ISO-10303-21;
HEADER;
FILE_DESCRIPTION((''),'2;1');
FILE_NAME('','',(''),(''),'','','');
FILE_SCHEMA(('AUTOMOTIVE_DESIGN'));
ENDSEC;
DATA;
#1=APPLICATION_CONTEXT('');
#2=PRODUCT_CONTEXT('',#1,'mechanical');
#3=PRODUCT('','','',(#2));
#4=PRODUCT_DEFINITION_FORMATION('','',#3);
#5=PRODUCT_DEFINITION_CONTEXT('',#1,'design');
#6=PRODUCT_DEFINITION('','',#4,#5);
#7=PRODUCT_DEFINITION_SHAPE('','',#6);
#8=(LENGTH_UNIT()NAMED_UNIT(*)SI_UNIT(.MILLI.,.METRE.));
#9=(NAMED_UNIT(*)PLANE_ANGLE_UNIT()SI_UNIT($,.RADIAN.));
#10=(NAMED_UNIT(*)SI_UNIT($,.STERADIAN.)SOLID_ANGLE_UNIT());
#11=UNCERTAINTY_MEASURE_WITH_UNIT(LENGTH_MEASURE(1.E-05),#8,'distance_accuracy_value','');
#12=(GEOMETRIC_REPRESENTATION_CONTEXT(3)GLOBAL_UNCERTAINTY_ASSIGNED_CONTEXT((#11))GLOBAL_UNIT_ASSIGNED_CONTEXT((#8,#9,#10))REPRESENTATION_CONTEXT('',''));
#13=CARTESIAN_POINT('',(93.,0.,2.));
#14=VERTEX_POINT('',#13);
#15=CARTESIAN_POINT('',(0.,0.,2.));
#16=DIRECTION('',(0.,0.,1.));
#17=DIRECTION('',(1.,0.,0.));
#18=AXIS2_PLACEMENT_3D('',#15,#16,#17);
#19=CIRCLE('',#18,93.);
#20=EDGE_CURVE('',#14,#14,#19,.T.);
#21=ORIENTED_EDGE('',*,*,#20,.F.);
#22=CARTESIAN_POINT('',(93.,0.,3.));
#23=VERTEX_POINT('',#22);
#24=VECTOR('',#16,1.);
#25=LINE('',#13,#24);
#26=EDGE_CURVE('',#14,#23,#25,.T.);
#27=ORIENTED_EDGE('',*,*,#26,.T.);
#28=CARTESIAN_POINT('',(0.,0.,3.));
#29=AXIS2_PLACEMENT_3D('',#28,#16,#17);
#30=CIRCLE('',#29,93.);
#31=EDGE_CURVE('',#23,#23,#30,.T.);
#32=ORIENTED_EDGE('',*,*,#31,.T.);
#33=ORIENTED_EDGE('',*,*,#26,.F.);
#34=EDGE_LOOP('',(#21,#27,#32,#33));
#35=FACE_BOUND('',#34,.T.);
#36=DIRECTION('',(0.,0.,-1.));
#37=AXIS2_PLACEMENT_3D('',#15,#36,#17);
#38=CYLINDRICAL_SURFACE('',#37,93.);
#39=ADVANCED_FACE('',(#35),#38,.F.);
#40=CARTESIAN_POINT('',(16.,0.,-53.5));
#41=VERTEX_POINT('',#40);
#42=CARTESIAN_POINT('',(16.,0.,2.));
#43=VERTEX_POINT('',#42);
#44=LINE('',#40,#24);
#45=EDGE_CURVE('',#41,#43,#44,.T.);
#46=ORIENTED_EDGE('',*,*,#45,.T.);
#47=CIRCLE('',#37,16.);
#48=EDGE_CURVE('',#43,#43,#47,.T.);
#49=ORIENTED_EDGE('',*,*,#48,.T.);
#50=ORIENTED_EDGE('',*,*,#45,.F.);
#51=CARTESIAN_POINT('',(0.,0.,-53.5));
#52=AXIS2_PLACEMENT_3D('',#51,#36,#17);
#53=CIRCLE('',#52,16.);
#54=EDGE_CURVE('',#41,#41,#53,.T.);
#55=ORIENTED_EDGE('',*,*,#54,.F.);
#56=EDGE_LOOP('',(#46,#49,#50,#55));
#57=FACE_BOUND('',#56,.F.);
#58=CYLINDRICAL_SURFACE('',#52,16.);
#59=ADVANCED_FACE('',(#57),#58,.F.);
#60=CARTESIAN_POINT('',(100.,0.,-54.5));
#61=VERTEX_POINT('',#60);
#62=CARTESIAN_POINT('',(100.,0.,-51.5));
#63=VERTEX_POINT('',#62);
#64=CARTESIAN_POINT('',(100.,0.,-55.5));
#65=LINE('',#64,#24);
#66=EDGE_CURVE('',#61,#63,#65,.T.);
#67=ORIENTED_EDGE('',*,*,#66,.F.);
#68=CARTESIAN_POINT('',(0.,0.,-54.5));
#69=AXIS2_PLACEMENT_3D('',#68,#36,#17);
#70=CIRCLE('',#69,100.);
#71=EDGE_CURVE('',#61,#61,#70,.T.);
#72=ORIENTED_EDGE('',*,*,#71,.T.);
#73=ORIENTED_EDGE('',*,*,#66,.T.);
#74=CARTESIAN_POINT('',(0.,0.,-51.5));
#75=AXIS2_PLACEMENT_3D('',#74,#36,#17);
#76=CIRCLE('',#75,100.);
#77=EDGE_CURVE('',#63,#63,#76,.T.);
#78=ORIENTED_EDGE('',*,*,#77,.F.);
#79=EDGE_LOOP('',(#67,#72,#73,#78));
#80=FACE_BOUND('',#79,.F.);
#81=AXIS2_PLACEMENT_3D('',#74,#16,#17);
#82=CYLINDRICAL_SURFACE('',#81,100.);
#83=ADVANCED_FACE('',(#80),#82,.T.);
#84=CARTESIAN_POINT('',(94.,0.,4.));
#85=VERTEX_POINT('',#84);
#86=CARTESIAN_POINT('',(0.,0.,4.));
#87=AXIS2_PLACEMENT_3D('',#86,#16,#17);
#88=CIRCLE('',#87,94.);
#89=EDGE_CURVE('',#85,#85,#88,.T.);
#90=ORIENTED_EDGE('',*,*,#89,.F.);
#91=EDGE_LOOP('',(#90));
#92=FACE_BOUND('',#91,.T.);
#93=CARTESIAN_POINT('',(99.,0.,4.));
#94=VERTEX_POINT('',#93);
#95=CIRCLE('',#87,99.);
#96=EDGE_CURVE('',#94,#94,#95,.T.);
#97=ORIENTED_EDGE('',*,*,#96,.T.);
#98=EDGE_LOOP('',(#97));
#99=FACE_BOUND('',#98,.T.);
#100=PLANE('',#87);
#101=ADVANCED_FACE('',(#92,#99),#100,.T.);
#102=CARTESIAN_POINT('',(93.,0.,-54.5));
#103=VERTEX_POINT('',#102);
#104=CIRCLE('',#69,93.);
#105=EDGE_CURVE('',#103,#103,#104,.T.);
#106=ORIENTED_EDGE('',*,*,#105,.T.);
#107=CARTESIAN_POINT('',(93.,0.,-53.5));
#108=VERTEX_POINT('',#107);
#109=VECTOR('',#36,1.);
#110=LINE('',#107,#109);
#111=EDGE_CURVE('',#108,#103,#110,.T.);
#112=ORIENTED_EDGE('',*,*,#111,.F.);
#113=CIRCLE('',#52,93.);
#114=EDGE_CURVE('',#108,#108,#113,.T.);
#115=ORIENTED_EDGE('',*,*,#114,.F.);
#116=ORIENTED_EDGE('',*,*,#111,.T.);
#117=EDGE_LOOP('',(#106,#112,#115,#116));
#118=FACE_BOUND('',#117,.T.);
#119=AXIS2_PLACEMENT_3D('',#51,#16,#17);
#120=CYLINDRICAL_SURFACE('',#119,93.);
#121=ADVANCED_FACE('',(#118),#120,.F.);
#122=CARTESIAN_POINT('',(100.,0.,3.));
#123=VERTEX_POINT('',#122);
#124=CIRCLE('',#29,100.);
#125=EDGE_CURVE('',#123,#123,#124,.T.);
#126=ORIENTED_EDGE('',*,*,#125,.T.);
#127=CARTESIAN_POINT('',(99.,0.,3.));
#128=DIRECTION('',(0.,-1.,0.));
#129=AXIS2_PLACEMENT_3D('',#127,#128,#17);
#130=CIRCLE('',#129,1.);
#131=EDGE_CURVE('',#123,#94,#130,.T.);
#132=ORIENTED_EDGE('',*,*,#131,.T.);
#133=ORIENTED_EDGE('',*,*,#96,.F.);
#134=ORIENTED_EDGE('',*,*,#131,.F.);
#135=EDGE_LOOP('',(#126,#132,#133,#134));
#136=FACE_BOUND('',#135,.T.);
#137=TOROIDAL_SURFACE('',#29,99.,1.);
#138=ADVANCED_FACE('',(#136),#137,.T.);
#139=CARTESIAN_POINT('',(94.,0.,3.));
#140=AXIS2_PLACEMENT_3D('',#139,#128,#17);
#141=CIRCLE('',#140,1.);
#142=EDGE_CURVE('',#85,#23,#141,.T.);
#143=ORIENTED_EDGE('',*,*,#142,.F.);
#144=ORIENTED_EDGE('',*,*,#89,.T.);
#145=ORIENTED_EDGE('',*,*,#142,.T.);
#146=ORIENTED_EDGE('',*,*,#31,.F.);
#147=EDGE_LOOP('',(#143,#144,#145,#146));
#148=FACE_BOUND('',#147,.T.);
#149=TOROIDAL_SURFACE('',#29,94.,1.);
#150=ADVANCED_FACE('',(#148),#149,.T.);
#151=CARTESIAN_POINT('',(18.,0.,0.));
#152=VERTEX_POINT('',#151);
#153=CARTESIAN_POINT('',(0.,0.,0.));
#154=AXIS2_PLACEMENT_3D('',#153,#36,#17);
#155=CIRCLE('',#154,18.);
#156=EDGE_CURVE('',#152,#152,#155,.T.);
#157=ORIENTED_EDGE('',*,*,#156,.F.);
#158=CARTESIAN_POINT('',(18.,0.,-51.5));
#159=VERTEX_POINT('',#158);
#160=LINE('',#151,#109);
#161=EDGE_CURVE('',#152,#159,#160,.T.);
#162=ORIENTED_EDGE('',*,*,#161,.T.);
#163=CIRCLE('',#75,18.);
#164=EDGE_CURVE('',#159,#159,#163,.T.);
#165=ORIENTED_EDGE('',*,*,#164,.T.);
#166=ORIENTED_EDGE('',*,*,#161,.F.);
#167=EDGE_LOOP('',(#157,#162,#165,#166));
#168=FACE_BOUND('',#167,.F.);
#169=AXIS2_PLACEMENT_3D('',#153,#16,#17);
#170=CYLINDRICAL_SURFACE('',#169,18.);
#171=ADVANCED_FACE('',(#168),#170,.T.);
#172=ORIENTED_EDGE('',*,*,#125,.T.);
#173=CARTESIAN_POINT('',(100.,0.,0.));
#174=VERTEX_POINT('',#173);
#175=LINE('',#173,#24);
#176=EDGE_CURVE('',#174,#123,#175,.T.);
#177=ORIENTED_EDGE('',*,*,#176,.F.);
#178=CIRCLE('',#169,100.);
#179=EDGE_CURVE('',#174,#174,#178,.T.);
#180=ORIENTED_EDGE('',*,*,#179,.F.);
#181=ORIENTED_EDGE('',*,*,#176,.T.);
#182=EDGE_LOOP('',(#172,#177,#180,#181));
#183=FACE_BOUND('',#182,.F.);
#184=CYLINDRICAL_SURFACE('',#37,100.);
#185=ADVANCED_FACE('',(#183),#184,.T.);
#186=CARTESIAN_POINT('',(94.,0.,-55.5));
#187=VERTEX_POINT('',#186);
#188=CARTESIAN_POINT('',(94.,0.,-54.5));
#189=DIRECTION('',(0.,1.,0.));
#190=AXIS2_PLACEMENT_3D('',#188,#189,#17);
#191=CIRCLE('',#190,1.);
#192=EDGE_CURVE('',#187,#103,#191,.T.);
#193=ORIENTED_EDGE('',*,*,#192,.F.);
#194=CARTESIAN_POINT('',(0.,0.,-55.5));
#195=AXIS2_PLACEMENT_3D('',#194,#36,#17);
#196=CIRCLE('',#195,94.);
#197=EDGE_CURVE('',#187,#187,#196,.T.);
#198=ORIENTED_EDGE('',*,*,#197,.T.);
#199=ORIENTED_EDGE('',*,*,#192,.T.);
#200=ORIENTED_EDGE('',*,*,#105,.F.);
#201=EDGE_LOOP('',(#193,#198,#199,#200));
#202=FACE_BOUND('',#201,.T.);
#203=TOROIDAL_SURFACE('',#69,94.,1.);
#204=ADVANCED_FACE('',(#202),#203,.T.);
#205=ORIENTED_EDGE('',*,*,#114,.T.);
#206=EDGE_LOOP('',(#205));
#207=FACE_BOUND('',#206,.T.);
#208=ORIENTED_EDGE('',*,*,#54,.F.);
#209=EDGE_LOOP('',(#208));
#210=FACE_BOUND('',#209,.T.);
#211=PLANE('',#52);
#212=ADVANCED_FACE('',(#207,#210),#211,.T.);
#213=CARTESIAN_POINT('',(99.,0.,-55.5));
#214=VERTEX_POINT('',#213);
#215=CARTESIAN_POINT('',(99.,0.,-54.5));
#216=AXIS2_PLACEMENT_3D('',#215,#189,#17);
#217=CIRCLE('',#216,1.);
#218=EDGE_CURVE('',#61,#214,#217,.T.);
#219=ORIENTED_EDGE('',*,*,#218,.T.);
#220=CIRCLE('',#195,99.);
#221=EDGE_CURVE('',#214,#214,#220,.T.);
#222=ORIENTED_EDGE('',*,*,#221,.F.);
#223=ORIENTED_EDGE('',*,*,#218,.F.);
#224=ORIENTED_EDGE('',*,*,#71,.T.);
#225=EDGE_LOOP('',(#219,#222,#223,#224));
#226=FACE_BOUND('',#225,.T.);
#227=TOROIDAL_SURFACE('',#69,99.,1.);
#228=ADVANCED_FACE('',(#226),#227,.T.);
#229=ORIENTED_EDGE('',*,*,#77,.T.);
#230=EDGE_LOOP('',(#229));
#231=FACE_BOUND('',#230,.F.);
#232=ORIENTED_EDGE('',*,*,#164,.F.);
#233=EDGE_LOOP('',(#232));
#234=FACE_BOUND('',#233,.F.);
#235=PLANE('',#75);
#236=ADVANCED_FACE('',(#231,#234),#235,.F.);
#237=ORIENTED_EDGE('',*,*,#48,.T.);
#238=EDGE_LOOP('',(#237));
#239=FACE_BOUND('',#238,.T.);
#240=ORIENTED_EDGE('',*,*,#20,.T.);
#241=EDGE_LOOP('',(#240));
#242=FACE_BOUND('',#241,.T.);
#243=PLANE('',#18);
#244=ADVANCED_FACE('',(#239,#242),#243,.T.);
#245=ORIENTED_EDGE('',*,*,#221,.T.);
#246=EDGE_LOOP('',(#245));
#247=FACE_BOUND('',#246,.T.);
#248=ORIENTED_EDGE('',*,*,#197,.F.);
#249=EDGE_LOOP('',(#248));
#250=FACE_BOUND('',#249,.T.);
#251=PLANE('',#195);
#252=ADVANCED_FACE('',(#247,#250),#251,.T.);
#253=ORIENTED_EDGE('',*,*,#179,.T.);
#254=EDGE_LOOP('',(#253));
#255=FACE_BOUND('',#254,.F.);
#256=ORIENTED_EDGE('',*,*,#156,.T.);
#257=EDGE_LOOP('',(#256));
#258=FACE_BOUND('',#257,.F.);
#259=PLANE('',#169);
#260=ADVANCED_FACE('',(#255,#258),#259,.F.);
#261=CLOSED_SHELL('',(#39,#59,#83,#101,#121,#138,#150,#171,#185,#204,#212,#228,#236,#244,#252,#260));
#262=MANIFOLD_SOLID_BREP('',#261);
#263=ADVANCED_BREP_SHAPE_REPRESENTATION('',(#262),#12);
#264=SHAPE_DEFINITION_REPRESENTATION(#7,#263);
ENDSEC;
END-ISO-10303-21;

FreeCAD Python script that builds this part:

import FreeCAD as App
import Part
import Sketcher


def edges_at(feature, points):
    """Names of the edges that pass closest to the given points."""
    edges = feature.Shape.Edges
    near = lambda p: min(range(len(edges)), key=lambda i: edges[i].distToShape(Part.Vertex(*p))[0])
    return sorted({f"Edge{near(p) + 1}" for p in points})

doc = App.newDocument("Part")
body = doc.addObject("PartDesign::Body", "Body")

sketch1 = doc.addObject("Sketcher::SketchObject", "Sketch")
body.addObject(sketch1)
sketch1.AttachmentSupport = (doc.XY_Plane, [""])
sketch1.MapMode = "FlatFace"
sketch1.addGeometry(Part.Circle(App.Vector(0, 0, 0), App.Vector(0, 0, 1), 100), False)
sketch1.addConstraint(Sketcher.Constraint("Coincident", 0, 3, -1, 1))
sketch1.addConstraint(Sketcher.Constraint("Diameter", 0, 200.0))
pad1 = doc.addObject("PartDesign::Pad", "Pad")
body.addObject(pad1)
pad1.Profile = sketch1
pad1.Length = 2

sketch2 = doc.addObject("Sketcher::SketchObject", "Sketch001")
body.addObject(sketch2)
sketch2.AttachmentSupport = (doc.XY_Plane, [""])
sketch2.MapMode = "FlatFace"
sketch2.addGeometry(Part.Circle(App.Vector(0, 0, 0), App.Vector(0, 0, 1), 18), False)
sketch2.addConstraint(Sketcher.Constraint("Coincident", 0, 3, -1, 1))
sketch2.addConstraint(Sketcher.Constraint("Diameter", 0, 36.0))
pad2 = doc.addObject("PartDesign::Pad", "Pad001")
body.addObject(pad2)
pad2.Profile = sketch2
pad2.Length = 51.5
pad2.Reversed = True
body2 = doc.addObject("PartDesign::Body", "Body001")

sketch3 = doc.addObject("Sketcher::SketchObject", "Sketch002")
body2.addObject(sketch3)
sketch3.AttachmentSupport = (doc.getObject("XY_Plane001"), [""])
sketch3.MapMode = "FlatFace"
sketch3.AttachmentOffset = App.Placement(App.Vector(0, 0, -53.5), App.Rotation())
sketch3.addGeometry(Part.Circle(App.Vector(0, 0, 0), App.Vector(0, 0, 1), 100), False)
sketch3.addGeometry(Part.Circle(App.Vector(0, 0, 0), App.Vector(0, 0, 1), 93), False)
sketch3.addConstraint(Sketcher.Constraint("Coincident", 0, 3, -1, 1))
sketch3.addConstraint(Sketcher.Constraint("Coincident", 1, 3, -1, 1))
sketch3.addConstraint(Sketcher.Constraint("Diameter", 0, 200.0))
sketch3.addConstraint(Sketcher.Constraint("Diameter", 1, 186.0))
pad3 = doc.addObject("PartDesign::Pad", "Pad002")
body2.addObject(pad3)
pad3.Profile = sketch3
pad3.Length = 2
pad3.Reversed = True
body.AllowCompound = True
doc.recompute()

boolean = doc.addObject("PartDesign::Boolean", "Boolean")
body.addObject(boolean)
boolean.Type = "Fuse"
boolean.addObjects([body2])

sketch4 = doc.addObject("Sketcher::SketchObject", "Sketch003")
body.addObject(sketch4)
sketch4.AttachmentSupport = (doc.XY_Plane, [""])
sketch4.MapMode = "FlatFace"
sketch4.AttachmentOffset = App.Placement(App.Vector(0, 0, -51.5), App.Rotation())
sketch4.addGeometry(Part.Circle(App.Vector(0, 0, 0), App.Vector(0, 0, 1), 100), False)
sketch4.addConstraint(Sketcher.Constraint("Coincident", 0, 3, -1, 1))
sketch4.addConstraint(Sketcher.Constraint("Diameter", 0, 200.0))
pad4 = doc.addObject("PartDesign::Pad", "Pad003")
body.addObject(pad4)
pad4.Profile = sketch4
pad4.Length = 2
pad4.Reversed = True

sketch5 = doc.addObject("Sketcher::SketchObject", "Sketch004")
body.addObject(sketch5)
sketch5.AttachmentSupport = (doc.XY_Plane, [""])
sketch5.MapMode = "FlatFace"
sketch5.AttachmentOffset = App.Placement(App.Vector(0, 0, 2), App.Rotation())
sketch5.addGeometry(Part.Circle(App.Vector(0, 0, 0), App.Vector(0, 0, 1), 100), False)
sketch5.addGeometry(Part.Circle(App.Vector(0, 0, 0), App.Vector(0, 0, 1), 93), False)
sketch5.addConstraint(Sketcher.Constraint("Coincident", 0, 3, -1, 1))
sketch5.addConstraint(Sketcher.Constraint("Coincident", 1, 3, -1, 1))
sketch5.addConstraint(Sketcher.Constraint("Diameter", 0, 200.0))
sketch5.addConstraint(Sketcher.Constraint("Diameter", 1, 186.0))
pad5 = doc.addObject("PartDesign::Pad", "Pad004")
body.addObject(pad5)
pad5.Profile = sketch5
pad5.Length = 2
doc.recompute()

fillet = doc.addObject("PartDesign::Fillet", "Fillet")
body.addObject(fillet)
fillet.Base = (pad5, edges_at(pad5, [
    (-93, 0, -55.5),
    (-100, 0, -55.5),
    (-93, 0, 4),
    (-100, 0, 4),
]))
fillet.Radius = 1

sketch6 = doc.addObject("Sketcher::SketchObject", "Sketch005")
body.addObject(sketch6)
sketch6.AttachmentSupport = (doc.XY_Plane, [""])
sketch6.MapMode = "FlatFace"
sketch6.AttachmentOffset = App.Placement(App.Vector(0, 0, -53.5), App.Rotation())
sketch6.addGeometry(Part.Circle(App.Vector(0, 0, 0), App.Vector(0, 0, 1), 16), False)
sketch6.addConstraint(Sketcher.Constraint("Coincident", 0, 3, -1, 1))
sketch6.addConstraint(Sketcher.Constraint("Diameter", 0, 32.0))
pocket1 = doc.addObject("PartDesign::Pocket", "Pocket")
body.addObject(pocket1)
pocket1.Profile = sketch6
pocket1.Length = 69
pocket1.Reversed = True

doc.recompute()
